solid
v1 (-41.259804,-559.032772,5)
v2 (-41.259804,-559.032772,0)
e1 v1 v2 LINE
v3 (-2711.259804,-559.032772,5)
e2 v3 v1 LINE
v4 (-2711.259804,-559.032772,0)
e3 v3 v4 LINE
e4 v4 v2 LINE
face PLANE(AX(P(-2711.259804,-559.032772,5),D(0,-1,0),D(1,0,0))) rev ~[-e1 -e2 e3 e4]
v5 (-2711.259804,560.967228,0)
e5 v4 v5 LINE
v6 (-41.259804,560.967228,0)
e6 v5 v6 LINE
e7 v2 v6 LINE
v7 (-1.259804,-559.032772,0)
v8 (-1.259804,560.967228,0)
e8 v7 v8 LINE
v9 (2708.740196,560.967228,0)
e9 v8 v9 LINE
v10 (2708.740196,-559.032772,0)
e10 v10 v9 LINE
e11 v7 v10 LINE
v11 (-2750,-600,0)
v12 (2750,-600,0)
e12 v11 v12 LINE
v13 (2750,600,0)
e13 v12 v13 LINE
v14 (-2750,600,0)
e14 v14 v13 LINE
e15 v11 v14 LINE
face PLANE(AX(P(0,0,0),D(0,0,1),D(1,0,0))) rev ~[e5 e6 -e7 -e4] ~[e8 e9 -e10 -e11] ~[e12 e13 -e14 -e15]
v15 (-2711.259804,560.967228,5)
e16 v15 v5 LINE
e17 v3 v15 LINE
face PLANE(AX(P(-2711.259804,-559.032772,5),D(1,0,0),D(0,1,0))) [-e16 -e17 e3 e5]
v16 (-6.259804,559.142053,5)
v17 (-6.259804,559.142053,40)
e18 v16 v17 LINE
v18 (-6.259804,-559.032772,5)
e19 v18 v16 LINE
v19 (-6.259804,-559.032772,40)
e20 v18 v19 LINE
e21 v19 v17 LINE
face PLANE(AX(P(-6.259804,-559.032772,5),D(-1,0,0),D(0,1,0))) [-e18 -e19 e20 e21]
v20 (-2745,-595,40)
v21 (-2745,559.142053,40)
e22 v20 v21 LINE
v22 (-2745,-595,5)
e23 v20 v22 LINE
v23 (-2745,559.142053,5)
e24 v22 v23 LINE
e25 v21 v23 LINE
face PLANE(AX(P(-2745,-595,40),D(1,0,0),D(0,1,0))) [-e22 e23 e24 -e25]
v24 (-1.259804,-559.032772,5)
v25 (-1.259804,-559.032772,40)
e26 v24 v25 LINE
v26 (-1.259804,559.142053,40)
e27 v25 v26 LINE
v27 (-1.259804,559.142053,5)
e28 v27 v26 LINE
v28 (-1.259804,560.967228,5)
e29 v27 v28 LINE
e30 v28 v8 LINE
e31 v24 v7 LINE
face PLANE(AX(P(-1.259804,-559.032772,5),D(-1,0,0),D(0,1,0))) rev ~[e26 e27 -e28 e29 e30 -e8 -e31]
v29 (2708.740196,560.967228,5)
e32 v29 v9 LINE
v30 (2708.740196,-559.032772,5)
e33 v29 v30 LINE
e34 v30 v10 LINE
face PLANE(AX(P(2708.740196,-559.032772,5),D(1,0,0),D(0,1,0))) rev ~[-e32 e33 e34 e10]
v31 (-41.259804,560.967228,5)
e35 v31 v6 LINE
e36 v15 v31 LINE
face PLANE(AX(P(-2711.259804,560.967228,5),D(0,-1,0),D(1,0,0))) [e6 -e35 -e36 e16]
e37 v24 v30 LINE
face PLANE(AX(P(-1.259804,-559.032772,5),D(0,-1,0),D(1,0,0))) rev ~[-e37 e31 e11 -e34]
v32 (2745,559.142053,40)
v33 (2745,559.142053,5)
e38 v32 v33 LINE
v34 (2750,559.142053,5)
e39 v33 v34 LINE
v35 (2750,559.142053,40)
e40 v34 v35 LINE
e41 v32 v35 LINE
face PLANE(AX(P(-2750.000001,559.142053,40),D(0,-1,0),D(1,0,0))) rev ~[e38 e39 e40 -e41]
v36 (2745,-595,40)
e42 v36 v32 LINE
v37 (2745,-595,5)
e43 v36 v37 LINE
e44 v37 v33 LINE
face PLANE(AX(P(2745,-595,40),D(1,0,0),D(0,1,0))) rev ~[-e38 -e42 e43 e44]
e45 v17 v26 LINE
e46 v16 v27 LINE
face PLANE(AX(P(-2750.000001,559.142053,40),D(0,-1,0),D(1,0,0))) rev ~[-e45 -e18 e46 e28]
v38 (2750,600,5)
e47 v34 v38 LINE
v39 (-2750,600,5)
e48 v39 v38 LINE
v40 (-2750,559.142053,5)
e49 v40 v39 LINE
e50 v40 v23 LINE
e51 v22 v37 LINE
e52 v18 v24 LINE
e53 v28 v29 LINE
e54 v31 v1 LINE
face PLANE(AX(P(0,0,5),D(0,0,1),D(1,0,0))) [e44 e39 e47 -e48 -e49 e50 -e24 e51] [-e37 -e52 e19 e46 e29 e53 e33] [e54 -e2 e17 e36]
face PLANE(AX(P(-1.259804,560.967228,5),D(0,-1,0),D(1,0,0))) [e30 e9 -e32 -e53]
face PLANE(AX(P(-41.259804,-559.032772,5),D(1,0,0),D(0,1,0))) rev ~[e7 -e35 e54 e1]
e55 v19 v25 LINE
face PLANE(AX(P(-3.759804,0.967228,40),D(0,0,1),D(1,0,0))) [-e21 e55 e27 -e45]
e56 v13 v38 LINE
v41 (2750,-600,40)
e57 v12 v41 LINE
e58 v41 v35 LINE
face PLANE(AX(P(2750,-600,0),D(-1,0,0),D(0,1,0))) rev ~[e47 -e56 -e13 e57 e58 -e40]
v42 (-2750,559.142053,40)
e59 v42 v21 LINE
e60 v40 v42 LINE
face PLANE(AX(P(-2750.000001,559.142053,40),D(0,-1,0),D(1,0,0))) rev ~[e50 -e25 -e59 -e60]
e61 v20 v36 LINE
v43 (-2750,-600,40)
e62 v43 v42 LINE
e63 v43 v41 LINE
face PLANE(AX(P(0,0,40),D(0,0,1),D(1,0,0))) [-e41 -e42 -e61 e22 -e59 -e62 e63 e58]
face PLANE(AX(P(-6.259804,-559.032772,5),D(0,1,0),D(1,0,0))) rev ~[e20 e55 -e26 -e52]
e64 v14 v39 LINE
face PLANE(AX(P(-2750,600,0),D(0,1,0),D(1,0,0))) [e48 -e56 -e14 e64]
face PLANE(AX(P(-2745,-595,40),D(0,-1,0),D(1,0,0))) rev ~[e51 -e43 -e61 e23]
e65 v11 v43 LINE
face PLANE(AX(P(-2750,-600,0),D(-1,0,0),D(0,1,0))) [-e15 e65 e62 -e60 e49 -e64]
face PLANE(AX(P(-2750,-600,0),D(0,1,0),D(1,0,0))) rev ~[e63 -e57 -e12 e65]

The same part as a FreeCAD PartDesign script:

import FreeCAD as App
import Part
import Sketcher
from FreeCAD import Vector

doc = App.newDocument("Part")
body = doc.addObject("PartDesign::Body", "Body")

# Sketch on XY plane
sketch1 = body.newObject("Sketcher::SketchObject", "Sketch")
sketch1.AttachmentSupport = (doc.getObject("XY_Plane"), [""])
sketch1.MapMode = "FlatFace"
sketch1.addGeometry(Part.LineSegment(Vector(-2750, 600, 0), Vector(-2750, -600, 0)), False)
sketch1.addGeometry(Part.LineSegment(Vector(-2750, -600, 0), Vector(2750, -600, 0)), False)
sketch1.addGeometry(Part.LineSegment(Vector(2750, -600, 0), Vector(2750, 600, 0)), False)
sketch1.addGeometry(Part.LineSegment(Vector(2750, 600, 0), Vector(-2750, 600, 0)), False)
sketch1.addConstraint(Sketcher.Constraint("Coincident", 0, 2, 1, 1))
sketch1.addConstraint(Sketcher.Constraint("Coincident", 1, 2, 2, 1))
sketch1.addConstraint(Sketcher.Constraint("Coincident", 2, 2, 3, 1))
sketch1.addConstraint(Sketcher.Constraint("Coincident", 3, 2, 0, 1))
sketch1.addConstraint(Sketcher.Constraint("Vertical", 0))
sketch1.addConstraint(Sketcher.Constraint("Horizontal", 1))
sketch1.addConstraint(Sketcher.Constraint("Vertical", 2))
sketch1.addConstraint(Sketcher.Constraint("Horizontal", 3))
sketch1.addConstraint(Sketcher.Constraint("Symmetric", 0, 2, 2, 2, -1, 1))
sketch1.addConstraint(Sketcher.Constraint("DistanceX", 1, 1, 1, 2, 5500.0))
sketch1.addConstraint(Sketcher.Constraint("DistanceY", 0, 2, 0, 1, 1200.0))
pad1 = body.newObject("PartDesign::Pad", "Pad")
pad1.Profile = sketch1
pad1.Length = 40

# Sketch on XY plane
sketch2 = body.newObject("Sketcher::SketchObject", "Sketch001")
sketch2.AttachmentSupport = (doc.getObject("XY_Plane"), [""])
sketch2.MapMode = "FlatFace"
sketch2.AttachmentOffset = App.Placement(Vector(0, 0, 40), App.Rotation())
sketch2.addGeometry(Part.LineSegment(Vector(-2745, 595, 0), Vector(-2745, -595, 0)), False)
sketch2.addGeometry(Part.LineSegment(Vector(-2745, -595, 0), Vector(2745, -595, 0)), False)
sketch2.addGeometry(Part.LineSegment(Vector(2745, -595, 0), Vector(2745, 595, 0)), False)
sketch2.addGeometry(Part.LineSegment(Vector(2745, 595, 0), Vector(-2745, 595, 0)), False)
sketch2.addConstraint(Sketcher.Constraint("Coincident", 0, 2, 1, 1))
sketch2.addConstraint(Sketcher.Constraint("Coincident", 1, 2, 2, 1))
sketch2.addConstraint(Sketcher.Constraint("Coincident", 2, 2, 3, 1))
sketch2.addConstraint(Sketcher.Constraint("Coincident", 3, 2, 0, 1))
sketch2.addConstraint(Sketcher.Constraint("Vertical", 0))
sketch2.addConstraint(Sketcher.Constraint("Horizontal", 1))
sketch2.addConstraint(Sketcher.Constraint("Vertical", 2))
sketch2.addConstraint(Sketcher.Constraint("Horizontal", 3))
sketch2.addConstraint(Sketcher.Constraint("Symmetric", 0, 2, 2, 2, -1, 1))
sketch2.addConstraint(Sketcher.Constraint("DistanceX", 1, 1, 1, 2, 5490.0))
sketch2.addConstraint(Sketcher.Constraint("DistanceY", 0, 2, 0, 1, 1190.0))
pocket1 = body.newObject("PartDesign::Pocket", "Pocket")
pocket1.Profile = sketch2
pocket1.Length = 35

# Sketch on XY plane
sketch3 = body.newObject("Sketcher::SketchObject", "Sketch002")
sketch3.AttachmentSupport = (doc.getObject("XY_Plane"), [""])
sketch3.MapMode = "FlatFace"
sketch3.AttachmentOffset = App.Placement(Vector(0, 0, 5), App.Rotation())
sketch3.addGeometry(Part.LineSegment(Vector(-2711, 561, 0), Vector(-2711, -559, 0)), False)
sketch3.addGeometry(Part.LineSegment(Vector(-2711, -559, 0), Vector(-41, -559, 0)), False)
sketch3.addGeometry(Part.LineSegment(Vector(-41, -559, 0), Vector(-41, 561, 0)), False)
sketch3.addGeometry(Part.LineSegment(Vector(-41, 561, 0), Vector(-2711, 561, 0)), False)
sketch3.addGeometry(Part.LineSegment(Vector(-1, 561, 0), Vector(-1, -559, 0)), False)
sketch3.addGeometry(Part.LineSegment(Vector(-1, -559, 0), Vector(2709, -559, 0)), False)
sketch3.addGeometry(Part.LineSegment(Vector(2709, -559, 0), Vector(2709, 561, 0)), False)
sketch3.addGeometry(Part.LineSegment(Vector(2709, 561, 0), Vector(-1, 561, 0)), False)
sketch3.addConstraint(Sketcher.Constraint("Coincident", 0, 2, 1, 1))
sketch3.addConstraint(Sketcher.Constraint("Coincident", 1, 2, 2, 1))
sketch3.addConstraint(Sketcher.Constraint("Coincident", 2, 2, 3, 1))
sketch3.addConstraint(Sketcher.Constraint("Coincident", 3, 2, 0, 1))
sketch3.addConstraint(Sketcher.Constraint("Coincident", 4, 2, 5, 1))
sketch3.addConstraint(Sketcher.Constraint("Coincident", 5, 2, 6, 1))
sketch3.addConstraint(Sketcher.Constraint("Coincident", 6, 2, 7, 1))
sketch3.addConstraint(Sketcher.Constraint("Coincident", 7, 2, 4, 1))
sketch3.addConstraint(Sketcher.Constraint("Vertical", 0))
sketch3.addConstraint(Sketcher.Constraint("Horizontal", 1))
sketch3.addConstraint(Sketcher.Constraint("Vertical", 2))
sketch3.addConstraint(Sketcher.Constraint("Horizontal", 3))
sketch3.addConstraint(Sketcher.Constraint("Vertical", 4))
sketch3.addConstraint(Sketcher.Constraint("Horizontal", 5))
sketch3.addConstraint(Sketcher.Constraint("Vertical", 6))
sketch3.addConstraint(Sketcher.Constraint("Horizontal", 7))
sketch3.addConstraint(Sketcher.Constraint("Horizontal", 1, 2, 4, 2))
sketch3.addConstraint(Sketcher.Constraint("Horizontal", 3, 2, 6, 2))
sketch3.addConstraint(Sketcher.Constraint("DistanceX", 1, 1, 1, 2, 2670.0))
sketch3.addConstraint(Sketcher.Constraint("DistanceX", 5, 1, 5, 2, 2710.0))
sketch3.addConstraint(Sketcher.Constraint("DistanceY", 0, 2, 0, 1, 1120.0))
sketch3.addConstraint(Sketcher.Constraint("DistanceX", 1, 2, 4, 2, 40.0))
sketch3.addConstraint(Sketcher.Constraint("DistanceY", 0, 2, -1, 1, 559.032772))
sketch3.addConstraint(Sketcher.Constraint("DistanceX", 0, 2, -1, 1, 2711.259804))
pocket2 = body.newObject("PartDesign::Pocket", "Pocket001")
pocket2.Profile = sketch3
pocket2.Length = 25

# Sketch on XY plane
sketch4 = body.newObject("Sketcher::SketchObject", "Sketch003")
sketch4.AttachmentSupport = (doc.getObject("XY_Plane"), [""])
sketch4.MapMode = "FlatFace"
sketch4.AttachmentOffset = App.Placement(Vector(0, 0, 5), App.Rotation())
sketch4.addGeometry(Part.LineSegment(Vector(-6, 561, 0), Vector(-6, -559, 0)), False)
sketch4.addGeometry(Part.LineSegment(Vector(-6, -559, 0), Vector(-1, -559, 0)), False)
sketch4.addGeometry(Part.LineSegment(Vector(-1, -559, 0), Vector(-1, 561, 0)), False)
sketch4.addGeometry(Part.LineSegment(Vector(-1, 561, 0), Vector(-6, 561, 0)), False)
sketch4.addConstraint(Sketcher.Constraint("Coincident", 0, 2, 1, 1))
sketch4.addConstraint(Sketcher.Constraint("Coincident", 1, 2, 2, 1))
sketch4.addConstraint(Sketcher.Constraint("Coincident", 2, 2, 3, 1))
sketch4.addConstraint(Sketcher.Constraint("Coincident", 3, 2, 0, 1))
sketch4.addConstraint(Sketcher.Constraint("Vertical", 0))
sketch4.addConstraint(Sketcher.Constraint("Horizontal", 1))
sketch4.addConstraint(Sketcher.Constraint("Vertical", 2))
sketch4.addConstraint(Sketcher.Constraint("Horizontal", 3))
sketch4.addConstraint(Sketcher.Constraint("DistanceX", 1, 1, 1, 2, 5.0))
sketch4.addConstraint(Sketcher.Constraint("DistanceY", 0, 2, 0, 1, 1120.0))
sketch4.addConstraint(Sketcher.Constraint("DistanceY", 0, 2, -1, 1, 559.032772))
sketch4.addConstraint(Sketcher.Constraint("DistanceX", 0, 2, -1, 1, 6.259804))
pad2 = body.newObject("PartDesign::Pad", "Pad001")
pad2.Profile = sketch4
pad2.Length = 35

# Sketch on XY plane
sketch5 = body.newObject("Sketcher::SketchObject", "Sketch004")
sketch5.AttachmentSupport = (doc.getObject("XY_Plane"), [""])
sketch5.MapMode = "FlatFace"
sketch5.AttachmentOffset = App.Placement(Vector(0, 0, 40), App.Rotation())
sketch5.addGeometry(Part.LineSegment(Vector(-2750, 638, 0), Vector(-2750, 559, 0)), False)
sketch5.addGeometry(Part.LineSegment(Vector(-2750, 559, 0), Vector(2823, 559, 0)), False)
sketch5.addGeometry(Part.LineSegment(Vector(2823, 559, 0), Vector(2823, 638, 0)), False)
sketch5.addGeometry(Part.LineSegment(Vector(2823, 638, 0), Vector(-2750, 638, 0)), False)
sketch5.addConstraint(Sketcher.Constraint("Coincident", 0, 2, 1, 1))
sketch5.addConstraint(Sketcher.Constraint("Coincident", 1, 2, 2, 1))
sketch5.addConstraint(Sketcher.Constraint("Coincident", 2, 2, 3, 1))
sketch5.addConstraint(Sketcher.Constraint("Coincident", 3, 2, 0, 1))
sketch5.addConstraint(Sketcher.Constraint("Vertical", 0))
sketch5.addConstraint(Sketcher.Constraint("Horizontal", 1))
sketch5.addConstraint(Sketcher.Constraint("Vertical", 2))
sketch5.addConstraint(Sketcher.Constraint("Horizontal", 3))
sketch5.addConstraint(Sketcher.Constraint("DistanceX", 0, 2, -1, 1, 2750.000001))
sketch5.addConstraint(Sketcher.Constraint("DistanceX", 1, 1, 1, 2, 5572.749853))
sketch5.addConstraint(Sketcher.Constraint("DistanceY", 0, 2, 0, 1, 78.416228))
sketch5.addConstraint(Sketcher.Constraint("DistanceY", -1, 1, 2, 2, 637.558281))
pocket3 = body.newObject("PartDesign::Pocket", "Pocket002")
pocket3.Profile = sketch5
pocket3.Length = 35

doc.recompute()
